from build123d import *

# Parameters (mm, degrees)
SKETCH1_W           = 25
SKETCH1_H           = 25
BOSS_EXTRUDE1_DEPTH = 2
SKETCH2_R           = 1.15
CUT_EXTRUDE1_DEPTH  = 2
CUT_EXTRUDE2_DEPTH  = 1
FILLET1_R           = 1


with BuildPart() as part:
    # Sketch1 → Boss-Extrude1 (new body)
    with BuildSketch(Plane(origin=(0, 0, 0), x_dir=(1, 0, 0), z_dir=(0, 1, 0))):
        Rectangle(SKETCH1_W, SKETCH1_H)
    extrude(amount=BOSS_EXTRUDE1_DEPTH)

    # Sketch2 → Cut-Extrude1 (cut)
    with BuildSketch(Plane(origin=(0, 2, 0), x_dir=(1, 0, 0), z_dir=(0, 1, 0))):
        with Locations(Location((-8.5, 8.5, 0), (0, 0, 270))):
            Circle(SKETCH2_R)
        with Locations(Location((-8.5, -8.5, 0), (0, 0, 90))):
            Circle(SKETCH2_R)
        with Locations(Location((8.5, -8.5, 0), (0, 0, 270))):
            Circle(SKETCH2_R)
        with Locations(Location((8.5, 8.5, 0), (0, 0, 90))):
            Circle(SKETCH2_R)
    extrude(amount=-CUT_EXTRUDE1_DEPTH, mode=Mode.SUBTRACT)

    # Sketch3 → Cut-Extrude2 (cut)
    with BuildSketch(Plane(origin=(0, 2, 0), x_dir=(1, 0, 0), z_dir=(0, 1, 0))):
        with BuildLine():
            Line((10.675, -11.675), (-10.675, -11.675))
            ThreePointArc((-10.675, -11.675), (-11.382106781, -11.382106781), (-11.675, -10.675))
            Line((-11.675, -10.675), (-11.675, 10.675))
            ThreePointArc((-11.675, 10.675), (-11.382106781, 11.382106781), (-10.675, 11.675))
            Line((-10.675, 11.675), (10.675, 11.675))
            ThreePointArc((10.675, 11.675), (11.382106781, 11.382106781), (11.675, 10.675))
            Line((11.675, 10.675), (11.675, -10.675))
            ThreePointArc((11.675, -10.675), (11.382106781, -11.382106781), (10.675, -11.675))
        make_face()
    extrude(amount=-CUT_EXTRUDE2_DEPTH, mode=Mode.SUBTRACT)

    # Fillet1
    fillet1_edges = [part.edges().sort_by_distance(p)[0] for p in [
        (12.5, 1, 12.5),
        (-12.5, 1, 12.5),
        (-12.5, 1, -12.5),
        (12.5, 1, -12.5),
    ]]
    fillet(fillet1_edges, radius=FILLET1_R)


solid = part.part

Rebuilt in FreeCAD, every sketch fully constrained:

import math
import FreeCAD as App
import Part
import Sketcher
from FreeCAD import Vector


def edges_at(feature, points):
    """Names of the edges that pass closest to the given points."""
    edges = feature.Shape.Edges
    near = lambda p: min(range(len(edges)), key=lambda i: edges[i].distToShape(Part.Vertex(*p))[0])
    return sorted({f"Edge{near(p) + 1}" for p in points})


def add_polygon(sketch, points):
    """Adds a closed chain of lines whose ends are joined by coincident constraints."""
    first, n = sketch.GeometryCount, len(points)
    for a, b in zip(points, points[1:] + points[:1]):
        sketch.addGeometry(Part.LineSegment(App.Vector(*a, 0), App.Vector(*b, 0)), False)
    for i in range(n):
        sketch.addConstraint(Sketcher.Constraint("Coincident", first + i, 2, first + (i + 1) % n, 1))

doc = App.newDocument("Part")
body = doc.addObject("PartDesign::Body", "Body")

# Sketch on XZ plane
sketch1 = doc.addObject("Sketcher::SketchObject", "Sketch")
body.addObject(sketch1)
sketch1.AttachmentSupport = (doc.XZ_Plane, [""])
sketch1.MapMode = "FlatFace"
add_polygon(sketch1, [(-12, -12), (-12, 12), (12, 12), (12, -12)])  # lines 0-3
sketch1.addConstraint(Sketcher.Constraint("Vertical", 0))
sketch1.addConstraint(Sketcher.Constraint("Horizontal", 1))
sketch1.addConstraint(Sketcher.Constraint("Vertical", 2))
sketch1.addConstraint(Sketcher.Constraint("Horizontal", 3))
sketch1.addConstraint(Sketcher.Constraint("Symmetric", 0, 2, 2, 2, -1, 1))
sketch1.addConstraint(Sketcher.Constraint("Equal", 3, 0))
sketch1.addConstraint(Sketcher.Constraint("DistanceX", 1, 1, 1, 2, 25.0))
pad1 = doc.addObject("PartDesign::Pad", "Pad")
body.addObject(pad1)
pad1.Profile = sketch1
pad1.Length = 2
pad1.Reversed = True

# Sketch on XZ plane
sketch2 = doc.addObject("Sketcher::SketchObject", "Sketch001")
body.addObject(sketch2)
sketch2.AttachmentSupport = (doc.XZ_Plane, [""])
sketch2.MapMode = "FlatFace"
sketch2.AttachmentOffset = App.Placement(Vector(0, 0, -2), App.Rotation())
sketch2.addGeometry(Part.Circle(Vector(-8.5, -8.5, 0), Vector(0, 0, 1), 1.1), False)
sketch2.addGeometry(Part.Circle(Vector(-8.5, 8.5, 0), Vector(0, 0, 1), 1.1), False)
sketch2.addGeometry(Part.Circle(Vector(8.5, 8.5, 0), Vector(0, 0, 1), 1.1), False)
sketch2.addGeometry(Part.Circle(Vector(8.5, -8.5, 0), Vector(0, 0, 1), 1.1), False)
sketch2.addConstraint(Sketcher.Constraint("Equal", 0, 1))
sketch2.addConstraint(Sketcher.Constraint("Equal", 1, 2))
sketch2.addConstraint(Sketcher.Constraint("Equal", 2, 3))
sketch2.addConstraint(Sketcher.Constraint("Symmetric", 0, 3, 2, 3, -1, 1))
sketch2.addConstraint(Sketcher.Constraint("Symmetric", 1, 3, 3, 3, -1, 1))
sketch2.addConstraint(Sketcher.Constraint("Symmetric", 1, 3, 2, 3, -2))
sketch2.addConstraint(Sketcher.Constraint("Diameter", 0, 2.3))
sketch2.addConstraint(Sketcher.Constraint("DistanceY", 0, 3, 1, 3, 17.0))
sketch2.addConstraint(Sketcher.Constraint("DistanceX", 1, 3, 2, 3, 17.0))
pocket1 = doc.addObject("PartDesign::Pocket", "Pocket")
body.addObject(pocket1)
pocket1.Profile = sketch2
pocket1.Length = 2
pocket1.Reversed = True

# Sketch on XZ plane
sketch3 = doc.addObject("Sketcher::SketchObject", "Sketch002")
body.addObject(sketch3)
sketch3.AttachmentSupport = (doc.XZ_Plane, [""])
sketch3.MapMode = "FlatFace"
sketch3.AttachmentOffset = App.Placement(Vector(0, 0, -2), App.Rotation())
sketch3.addGeometry(Part.LineSegment(Vector(-10.7, 11.7, 0), Vector(10.7, 11.7, 0)), False)
sketch3.addGeometry(Part.ArcOfCircle(Part.Circle(Vector(10.7, 10.7, 0), Vector(0, 0, 1), 1), math.radians(0), math.radians(90)), False)
sketch3.addGeometry(Part.LineSegment(Vector(11.7, 10.7, 0), Vector(11.7, -10.7, 0)), False)
sketch3.addGeometry(Part.ArcOfCircle(Part.Circle(Vector(10.7, -10.7, 0), Vector(0, 0, 1), 1), math.radians(-90), math.radians(0)), False)
sketch3.addGeometry(Part.LineSegment(Vector(10.7, -11.7, 0), Vector(-10.7, -11.7, 0)), False)
sketch3.addGeometry(Part.ArcOfCircle(Part.Circle(Vector(-10.7, -10.7, 0), Vector(0, 0, 1), 1), math.radians(-180), math.radians(-90)), False)
sketch3.addGeometry(Part.LineSegment(Vector(-11.7, -10.7, 0), Vector(-11.7, 10.7, 0)), False)
sketch3.addGeometry(Part.ArcOfCircle(Part.Circle(Vector(-10.7, 10.7, 0), Vector(0, 0, 1), 1), math.radians(90), math.radians(180)), False)
sketch3.addConstraint(Sketcher.Constraint("Tangent", 0, 2, 1, 2))
sketch3.addConstraint(Sketcher.Constraint("Tangent", 1, 1, 2, 1))
sketch3.addConstraint(Sketcher.Constraint("Tangent", 2, 2, 3, 2))
sketch3.addConstraint(Sketcher.Constraint("Tangent", 3, 1, 4, 1))
sketch3.addConstraint(Sketcher.Constraint("Tangent", 4, 2, 5, 2))
sketch3.addConstraint(Sketcher.Constraint("Tangent", 5, 1, 6, 1))
sketch3.addConstraint(Sketcher.Constraint("Tangent", 6, 2, 7, 2))
sketch3.addConstraint(Sketcher.Constraint("Tangent", 7, 1, 0, 1))
sketch3.addConstraint(Sketcher.Constraint("Horizontal", 0))
sketch3.addConstraint(Sketcher.Constraint("Vertical", 2))
sketch3.addConstraint(Sketcher.Constraint("Horizontal", 4))
sketch3.addConstraint(Sketcher.Constraint("Vertical", 6))
sketch3.addConstraint(Sketcher.Constraint("Equal", 1, 3))
sketch3.addConstraint(Sketcher.Constraint("Equal", 3, 5))
sketch3.addConstraint(Sketcher.Constraint("Equal", 5, 7))
sketch3.addConstraint(Sketcher.Constraint("Symmetric", 1, 3, 5, 3, -1, 1))
sketch3.addConstraint(Sketcher.Constraint("Equal", 4, 2))
sketch3.addConstraint(Sketcher.Constraint("Radius", 1, 1.0))
sketch3.addConstraint(Sketcher.Constraint("DistanceX", 0, 1, 0, 2, 21.35))
pocket2 = doc.addObject("PartDesign::Pocket", "Pocket001")
body.addObject(pocket2)
pocket2.Profile = sketch3
pocket2.Length = 1
pocket2.Reversed = True
doc.recompute()

fillet = doc.addObject("PartDesign::Fillet", "Fillet")
body.addObject(fillet)
fillet.Base = (pocket2, edges_at(pocket2, [
    (12.5, 1, 12.5),
    (-12.5, 1, 12.5),
    (-12.5, 1, -12.5),
    (12.5, 1, -12.5),
]))
fillet.Radius = 1

doc.recompute()
